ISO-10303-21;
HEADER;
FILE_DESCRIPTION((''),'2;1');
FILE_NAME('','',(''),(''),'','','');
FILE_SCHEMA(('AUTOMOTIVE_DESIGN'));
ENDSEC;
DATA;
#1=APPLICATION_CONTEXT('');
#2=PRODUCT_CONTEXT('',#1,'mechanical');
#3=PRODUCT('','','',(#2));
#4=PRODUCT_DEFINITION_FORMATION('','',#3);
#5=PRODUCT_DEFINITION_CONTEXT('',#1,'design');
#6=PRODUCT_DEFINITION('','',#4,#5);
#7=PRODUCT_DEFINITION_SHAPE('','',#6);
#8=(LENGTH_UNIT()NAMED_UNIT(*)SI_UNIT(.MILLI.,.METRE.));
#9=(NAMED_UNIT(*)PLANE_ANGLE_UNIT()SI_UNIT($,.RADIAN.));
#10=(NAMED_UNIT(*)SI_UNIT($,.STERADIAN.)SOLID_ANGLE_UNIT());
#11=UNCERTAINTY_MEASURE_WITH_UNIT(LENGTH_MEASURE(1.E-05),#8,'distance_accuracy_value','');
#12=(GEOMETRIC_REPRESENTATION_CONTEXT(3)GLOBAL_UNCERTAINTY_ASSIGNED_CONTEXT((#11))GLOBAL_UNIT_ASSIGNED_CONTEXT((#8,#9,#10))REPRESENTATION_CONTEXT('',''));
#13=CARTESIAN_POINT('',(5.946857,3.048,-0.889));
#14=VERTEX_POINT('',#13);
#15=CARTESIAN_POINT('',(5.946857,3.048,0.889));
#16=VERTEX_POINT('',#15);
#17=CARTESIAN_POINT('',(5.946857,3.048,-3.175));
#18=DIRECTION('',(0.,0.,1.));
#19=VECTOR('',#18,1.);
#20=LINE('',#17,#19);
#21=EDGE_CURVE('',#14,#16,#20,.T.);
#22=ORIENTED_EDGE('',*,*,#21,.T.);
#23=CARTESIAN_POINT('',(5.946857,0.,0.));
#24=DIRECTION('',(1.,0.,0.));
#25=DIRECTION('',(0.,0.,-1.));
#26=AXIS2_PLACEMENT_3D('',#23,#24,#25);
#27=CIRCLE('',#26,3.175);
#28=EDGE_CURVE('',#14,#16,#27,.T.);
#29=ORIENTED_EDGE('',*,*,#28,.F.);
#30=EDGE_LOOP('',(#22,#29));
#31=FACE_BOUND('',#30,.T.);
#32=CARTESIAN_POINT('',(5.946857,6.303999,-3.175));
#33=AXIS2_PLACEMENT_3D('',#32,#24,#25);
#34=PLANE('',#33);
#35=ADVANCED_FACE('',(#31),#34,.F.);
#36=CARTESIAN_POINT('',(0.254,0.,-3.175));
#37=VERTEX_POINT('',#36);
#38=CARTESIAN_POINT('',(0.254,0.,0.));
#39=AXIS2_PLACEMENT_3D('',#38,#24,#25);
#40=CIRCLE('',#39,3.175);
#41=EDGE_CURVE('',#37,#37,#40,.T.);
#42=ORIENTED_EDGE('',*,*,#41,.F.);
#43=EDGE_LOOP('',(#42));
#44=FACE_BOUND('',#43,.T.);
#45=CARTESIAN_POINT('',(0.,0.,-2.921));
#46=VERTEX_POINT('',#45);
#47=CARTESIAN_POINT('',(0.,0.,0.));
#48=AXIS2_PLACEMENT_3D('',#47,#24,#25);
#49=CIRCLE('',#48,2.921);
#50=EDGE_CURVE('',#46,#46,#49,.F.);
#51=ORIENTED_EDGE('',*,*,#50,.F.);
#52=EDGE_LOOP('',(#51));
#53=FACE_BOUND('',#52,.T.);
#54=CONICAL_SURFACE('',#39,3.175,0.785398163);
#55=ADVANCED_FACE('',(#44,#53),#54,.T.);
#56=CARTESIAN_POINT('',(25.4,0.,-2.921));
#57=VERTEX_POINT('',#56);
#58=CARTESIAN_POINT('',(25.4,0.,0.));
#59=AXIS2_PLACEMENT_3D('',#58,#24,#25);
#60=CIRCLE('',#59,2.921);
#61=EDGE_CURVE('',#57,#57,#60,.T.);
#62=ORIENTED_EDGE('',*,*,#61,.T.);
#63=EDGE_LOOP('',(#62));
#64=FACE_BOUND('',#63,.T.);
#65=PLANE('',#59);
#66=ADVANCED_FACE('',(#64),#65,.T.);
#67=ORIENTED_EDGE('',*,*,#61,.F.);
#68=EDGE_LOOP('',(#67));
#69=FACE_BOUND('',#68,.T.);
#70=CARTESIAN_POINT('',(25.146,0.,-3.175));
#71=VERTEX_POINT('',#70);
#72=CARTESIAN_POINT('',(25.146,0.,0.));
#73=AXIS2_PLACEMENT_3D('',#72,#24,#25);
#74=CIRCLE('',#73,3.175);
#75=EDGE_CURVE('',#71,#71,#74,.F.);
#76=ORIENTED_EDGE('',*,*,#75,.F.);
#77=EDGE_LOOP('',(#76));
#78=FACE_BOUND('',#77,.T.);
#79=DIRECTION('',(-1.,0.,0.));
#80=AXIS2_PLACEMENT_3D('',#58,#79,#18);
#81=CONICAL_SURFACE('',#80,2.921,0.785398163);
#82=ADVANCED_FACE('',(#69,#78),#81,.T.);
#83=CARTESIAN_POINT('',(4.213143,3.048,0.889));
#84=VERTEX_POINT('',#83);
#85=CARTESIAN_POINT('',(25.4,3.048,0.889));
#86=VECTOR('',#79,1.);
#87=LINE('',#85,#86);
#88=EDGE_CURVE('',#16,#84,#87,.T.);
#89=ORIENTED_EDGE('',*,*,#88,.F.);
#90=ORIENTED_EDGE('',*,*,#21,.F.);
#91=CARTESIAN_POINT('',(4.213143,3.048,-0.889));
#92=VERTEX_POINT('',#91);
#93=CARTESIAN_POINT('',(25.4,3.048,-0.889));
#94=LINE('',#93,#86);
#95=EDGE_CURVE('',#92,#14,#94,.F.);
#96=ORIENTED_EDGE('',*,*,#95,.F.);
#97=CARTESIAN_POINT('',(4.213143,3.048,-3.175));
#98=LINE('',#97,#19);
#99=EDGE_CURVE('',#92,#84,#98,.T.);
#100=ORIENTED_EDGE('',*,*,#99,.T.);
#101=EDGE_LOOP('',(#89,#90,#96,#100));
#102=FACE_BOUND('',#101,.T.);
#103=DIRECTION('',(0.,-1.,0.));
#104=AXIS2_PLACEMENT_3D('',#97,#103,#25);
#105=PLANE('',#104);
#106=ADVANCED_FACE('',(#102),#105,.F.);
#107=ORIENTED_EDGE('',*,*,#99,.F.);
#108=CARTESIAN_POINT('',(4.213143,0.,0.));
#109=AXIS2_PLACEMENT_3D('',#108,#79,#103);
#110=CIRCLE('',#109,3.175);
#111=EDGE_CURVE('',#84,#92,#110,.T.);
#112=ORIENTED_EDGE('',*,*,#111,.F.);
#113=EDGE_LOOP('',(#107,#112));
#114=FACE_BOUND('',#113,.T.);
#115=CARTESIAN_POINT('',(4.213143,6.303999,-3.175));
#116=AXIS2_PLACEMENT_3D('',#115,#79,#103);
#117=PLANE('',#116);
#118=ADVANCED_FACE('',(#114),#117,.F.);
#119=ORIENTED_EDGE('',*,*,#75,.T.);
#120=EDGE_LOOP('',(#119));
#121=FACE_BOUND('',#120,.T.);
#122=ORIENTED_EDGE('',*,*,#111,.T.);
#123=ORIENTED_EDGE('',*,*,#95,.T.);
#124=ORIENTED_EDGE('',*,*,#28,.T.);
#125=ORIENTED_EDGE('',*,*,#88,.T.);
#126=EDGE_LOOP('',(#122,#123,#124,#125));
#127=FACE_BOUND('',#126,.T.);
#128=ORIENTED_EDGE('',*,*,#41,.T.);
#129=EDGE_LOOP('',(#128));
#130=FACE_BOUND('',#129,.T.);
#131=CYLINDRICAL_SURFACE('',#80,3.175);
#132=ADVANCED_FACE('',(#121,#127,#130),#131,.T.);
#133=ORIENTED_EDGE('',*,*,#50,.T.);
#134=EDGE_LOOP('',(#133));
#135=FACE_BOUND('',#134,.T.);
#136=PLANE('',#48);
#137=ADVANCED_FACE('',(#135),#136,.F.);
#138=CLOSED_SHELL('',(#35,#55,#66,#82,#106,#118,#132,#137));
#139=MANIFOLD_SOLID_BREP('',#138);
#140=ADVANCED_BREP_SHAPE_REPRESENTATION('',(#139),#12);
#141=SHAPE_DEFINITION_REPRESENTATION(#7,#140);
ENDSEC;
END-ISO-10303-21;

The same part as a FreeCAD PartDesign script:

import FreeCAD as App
import Part
import Sketcher
Q = App.Units.Quantity


def edges_at(feature, points):
    """Names of the edges that pass closest to the given points."""
    edges = feature.Shape.Edges
    near = lambda p: min(range(len(edges)), key=lambda i: edges[i].distToShape(Part.Vertex(*p))[0])
    return sorted({f"Edge{near(p) + 1}" for p in points})


def add_polygon(sketch, points):
    """Adds a closed chain of lines whose ends are joined by coincident constraints."""
    first, n = sketch.GeometryCount, len(points)
    for a, b in zip(points, points[1:] + points[:1]):
        sketch.addGeometry(Part.LineSegment(App.Vector(*a, 0), App.Vector(*b, 0)), False)
    for i in range(n):
        sketch.addConstraint(Sketcher.Constraint("Coincident", first + i, 2, first + (i + 1) % n, 1))

doc = App.newDocument("Part")
body = doc.addObject("PartDesign::Body", "Body")

# Sketch on YZ plane
sketch1 = doc.addObject("Sketcher::SketchObject", "Sketch")
body.addObject(sketch1)
sketch1.AttachmentSupport = (doc.YZ_Plane, [""])
sketch1.MapMode = "FlatFace"
sketch1.addGeometry(Part.Circle(App.Vector(0, 0, 0), App.Vector(0, 0, 1), 3.2), False)
sketch1.addConstraint([
    Sketcher.Constraint("Coincident", 0, 3, -1, 1),
    Sketcher.Constraint("Diameter", 0, Q("0.25 in")),
])
pad1 = doc.addObject("PartDesign::Pad", "Pad")
body.addObject(pad1)
pad1.Profile = sketch1
pad1.Length = Q("1 in")
doc.recompute()

chamfer = doc.addObject("PartDesign::Chamfer", "Chamfer")
body.addObject(chamfer)
chamfer.Base = (pad1, edges_at(pad1, [(0, 0, 3.175), (25.4, 0, 3.175)]))
chamfer.Size = Q("0.01 in")

# Sketch on XY plane
sketch2 = doc.addObject("Sketcher::SketchObject", "Sketch001")
body.addObject(sketch2)
sketch2.AttachmentSupport = (doc.XY_Plane, [""])
sketch2.MapMode = "FlatFace"
add_polygon(sketch2, [(4.2, 6.3), (4.2, 3), (5.9, 3), (5.9, 6.3)])  # lines 0-3
sketch2.addConstraint([
    Sketcher.Constraint("Vertical", 0),
    Sketcher.Constraint("Horizontal", 1),
    Sketcher.Constraint("Vertical", 2),
    Sketcher.Constraint("Horizontal", 3),
    Sketcher.Constraint("DistanceY", -1, 1, 0, 2, Q("0.12 in")),
    Sketcher.Constraint("DistanceY", 0, 2, 0, 1, Q("3.255999 mm")),
    Sketcher.Constraint("DistanceX", 1, 1, 1, 2, Q("1.733714 mm")),
    Sketcher.Constraint("DistanceX", -1, 1, 0, 2, Q("4.213143 mm")),
])
pocket1 = doc.addObject("PartDesign::Pocket", "Pocket")
body.addObject(pocket1)
pocket1.Profile = sketch2
pocket1.Type = "ThroughAll"
pocket1.Midplane = True

doc.recompute()
